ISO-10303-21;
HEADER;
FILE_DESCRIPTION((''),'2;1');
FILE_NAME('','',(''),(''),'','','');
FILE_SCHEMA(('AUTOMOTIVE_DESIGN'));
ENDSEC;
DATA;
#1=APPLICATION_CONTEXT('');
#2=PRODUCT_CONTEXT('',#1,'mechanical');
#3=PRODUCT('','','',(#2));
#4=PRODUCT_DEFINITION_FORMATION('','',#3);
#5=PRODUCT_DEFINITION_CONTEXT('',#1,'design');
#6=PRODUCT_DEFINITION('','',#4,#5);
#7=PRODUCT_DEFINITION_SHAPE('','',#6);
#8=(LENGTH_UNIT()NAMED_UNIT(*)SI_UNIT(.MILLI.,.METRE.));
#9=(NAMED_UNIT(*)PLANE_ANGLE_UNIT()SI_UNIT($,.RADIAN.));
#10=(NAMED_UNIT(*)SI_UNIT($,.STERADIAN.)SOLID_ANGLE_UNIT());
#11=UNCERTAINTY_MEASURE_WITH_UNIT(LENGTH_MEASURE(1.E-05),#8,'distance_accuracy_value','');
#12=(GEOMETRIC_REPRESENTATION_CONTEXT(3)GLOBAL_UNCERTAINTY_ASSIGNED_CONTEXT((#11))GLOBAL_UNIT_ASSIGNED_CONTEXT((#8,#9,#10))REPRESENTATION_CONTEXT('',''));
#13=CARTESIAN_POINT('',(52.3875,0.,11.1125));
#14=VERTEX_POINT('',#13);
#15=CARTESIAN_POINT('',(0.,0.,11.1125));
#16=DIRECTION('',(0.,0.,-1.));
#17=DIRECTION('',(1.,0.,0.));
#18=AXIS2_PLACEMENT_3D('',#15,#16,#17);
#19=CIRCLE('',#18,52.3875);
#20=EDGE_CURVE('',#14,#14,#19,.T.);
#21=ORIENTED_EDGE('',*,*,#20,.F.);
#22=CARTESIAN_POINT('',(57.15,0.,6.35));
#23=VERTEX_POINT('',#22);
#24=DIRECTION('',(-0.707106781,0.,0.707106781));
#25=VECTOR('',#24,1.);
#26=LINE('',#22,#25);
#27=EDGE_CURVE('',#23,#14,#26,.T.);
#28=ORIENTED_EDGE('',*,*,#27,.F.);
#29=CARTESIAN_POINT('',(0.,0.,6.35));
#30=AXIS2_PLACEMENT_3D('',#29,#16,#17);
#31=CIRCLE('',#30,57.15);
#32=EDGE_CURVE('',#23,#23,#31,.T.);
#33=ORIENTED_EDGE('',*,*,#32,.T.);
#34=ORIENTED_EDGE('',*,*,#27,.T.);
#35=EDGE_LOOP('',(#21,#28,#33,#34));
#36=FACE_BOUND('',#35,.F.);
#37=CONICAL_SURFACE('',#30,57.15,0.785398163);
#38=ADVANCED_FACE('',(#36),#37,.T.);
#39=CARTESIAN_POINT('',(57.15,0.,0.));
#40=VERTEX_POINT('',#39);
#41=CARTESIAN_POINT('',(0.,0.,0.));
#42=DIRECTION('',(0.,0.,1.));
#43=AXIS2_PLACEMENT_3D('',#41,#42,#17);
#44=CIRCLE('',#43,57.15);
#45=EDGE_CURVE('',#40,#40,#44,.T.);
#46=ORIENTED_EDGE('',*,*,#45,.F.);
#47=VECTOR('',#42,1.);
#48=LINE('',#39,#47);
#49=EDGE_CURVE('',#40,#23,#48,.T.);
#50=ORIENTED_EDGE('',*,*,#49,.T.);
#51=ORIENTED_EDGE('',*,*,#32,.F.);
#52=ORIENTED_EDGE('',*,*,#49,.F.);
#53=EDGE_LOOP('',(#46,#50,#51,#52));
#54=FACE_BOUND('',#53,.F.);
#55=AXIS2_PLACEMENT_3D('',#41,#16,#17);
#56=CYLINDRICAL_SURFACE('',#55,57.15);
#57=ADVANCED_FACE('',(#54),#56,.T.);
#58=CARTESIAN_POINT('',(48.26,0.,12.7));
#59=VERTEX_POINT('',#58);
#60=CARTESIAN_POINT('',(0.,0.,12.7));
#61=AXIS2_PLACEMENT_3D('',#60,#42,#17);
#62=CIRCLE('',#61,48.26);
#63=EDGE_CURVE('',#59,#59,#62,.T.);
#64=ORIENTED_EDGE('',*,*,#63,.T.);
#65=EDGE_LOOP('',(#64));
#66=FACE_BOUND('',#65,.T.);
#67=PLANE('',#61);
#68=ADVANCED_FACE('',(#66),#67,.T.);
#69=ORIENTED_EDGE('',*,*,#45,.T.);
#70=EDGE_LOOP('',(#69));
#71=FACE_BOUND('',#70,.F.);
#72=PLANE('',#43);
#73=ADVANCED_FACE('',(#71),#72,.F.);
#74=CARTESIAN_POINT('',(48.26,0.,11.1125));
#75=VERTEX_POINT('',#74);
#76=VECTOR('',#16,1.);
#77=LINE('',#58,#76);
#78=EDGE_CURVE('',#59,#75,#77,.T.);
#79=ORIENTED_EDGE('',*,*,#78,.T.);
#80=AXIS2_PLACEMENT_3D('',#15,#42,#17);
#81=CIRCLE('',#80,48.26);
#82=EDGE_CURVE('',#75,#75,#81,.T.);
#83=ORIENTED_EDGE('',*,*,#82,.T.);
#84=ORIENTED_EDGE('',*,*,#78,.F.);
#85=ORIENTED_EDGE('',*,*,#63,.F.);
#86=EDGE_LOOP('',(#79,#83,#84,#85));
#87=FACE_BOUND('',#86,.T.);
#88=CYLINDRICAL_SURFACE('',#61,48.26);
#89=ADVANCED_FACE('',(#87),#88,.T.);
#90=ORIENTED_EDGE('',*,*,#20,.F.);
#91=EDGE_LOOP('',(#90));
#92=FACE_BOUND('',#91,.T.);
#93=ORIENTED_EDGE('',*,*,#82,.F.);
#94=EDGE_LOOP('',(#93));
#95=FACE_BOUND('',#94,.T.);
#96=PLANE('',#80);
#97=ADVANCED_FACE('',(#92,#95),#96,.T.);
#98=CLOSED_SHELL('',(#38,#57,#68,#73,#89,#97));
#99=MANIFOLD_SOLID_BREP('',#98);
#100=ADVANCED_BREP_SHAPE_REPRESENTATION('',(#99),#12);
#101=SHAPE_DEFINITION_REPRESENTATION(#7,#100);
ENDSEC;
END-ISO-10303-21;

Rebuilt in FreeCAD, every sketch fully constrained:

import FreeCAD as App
import Part
import Sketcher
from FreeCAD import Vector
Q = App.Units.Quantity


def edges_at(feature, points):
    """Names of the edges that pass closest to the given points."""
    edges = feature.Shape.Edges
    near = lambda p: min(range(len(edges)), key=lambda i: edges[i].distToShape(Part.Vertex(*p))[0])
    return sorted({f"Edge{near(p) + 1}" for p in points})

doc = App.newDocument("Part")
body = doc.addObject("PartDesign::Body", "Body")

sketch1 = body.newObject("Sketcher::SketchObject", "Sketch")
sketch1.AttachmentSupport = (doc.getObject("XY_Plane"), [""])
sketch1.MapMode = "FlatFace"
sketch1.addGeometry(Part.Circle(Vector(0, 0, 0), Vector(0, 0, 1), 57.15), False)
sketch1.addConstraint(Sketcher.Constraint("Coincident", 0, 3, -1, 1))
sketch1.addConstraint(Sketcher.Constraint("Diameter", 0, Q("4.5 in")))
pad1 = body.newObject("PartDesign::Pad", "Pad")
pad1.Profile = sketch1
pad1.Length = Q("0.5 in")

sketch2 = body.newObject("Sketcher::SketchObject", "Sketch001")
sketch2.AttachmentSupport = (doc.getObject("XY_Plane"), [""])
sketch2.MapMode = "FlatFace"
sketch2.AttachmentOffset = App.Placement(Vector(0, 0, 0.5 * 25.4), App.Rotation())
sketch2.addGeometry(Part.Circle(Vector(0, 0, 0), Vector(0, 0, 1), 82.073796), False)
sketch2.addGeometry(Part.Circle(Vector(0, 0, 0), Vector(0, 0, 1), 48.26), False)
sketch2.addConstraint(Sketcher.Constraint("Coincident", 0, 3, -1, 1))
sketch2.addConstraint(Sketcher.Constraint("Coincident", 1, 3, -1, 1))
sketch2.addConstraint(Sketcher.Constraint("Diameter", 1, Q("3.8 in")))
sketch2.addConstraint(Sketcher.Constraint("Diameter", 0, 164.147592))
pocket1 = body.newObject("PartDesign::Pocket", "Pocket")
pocket1.Profile = sketch2
pocket1.Length = Q("0.0625 in")
doc.recompute()

chamfer = body.newObject("PartDesign::Chamfer", "Chamfer")
chamfer.Base = (pocket1, edges_at(pocket1, [(-57.15, 0, 11.113)]))
chamfer.Size = Q("0.1875 in")

doc.recompute()
